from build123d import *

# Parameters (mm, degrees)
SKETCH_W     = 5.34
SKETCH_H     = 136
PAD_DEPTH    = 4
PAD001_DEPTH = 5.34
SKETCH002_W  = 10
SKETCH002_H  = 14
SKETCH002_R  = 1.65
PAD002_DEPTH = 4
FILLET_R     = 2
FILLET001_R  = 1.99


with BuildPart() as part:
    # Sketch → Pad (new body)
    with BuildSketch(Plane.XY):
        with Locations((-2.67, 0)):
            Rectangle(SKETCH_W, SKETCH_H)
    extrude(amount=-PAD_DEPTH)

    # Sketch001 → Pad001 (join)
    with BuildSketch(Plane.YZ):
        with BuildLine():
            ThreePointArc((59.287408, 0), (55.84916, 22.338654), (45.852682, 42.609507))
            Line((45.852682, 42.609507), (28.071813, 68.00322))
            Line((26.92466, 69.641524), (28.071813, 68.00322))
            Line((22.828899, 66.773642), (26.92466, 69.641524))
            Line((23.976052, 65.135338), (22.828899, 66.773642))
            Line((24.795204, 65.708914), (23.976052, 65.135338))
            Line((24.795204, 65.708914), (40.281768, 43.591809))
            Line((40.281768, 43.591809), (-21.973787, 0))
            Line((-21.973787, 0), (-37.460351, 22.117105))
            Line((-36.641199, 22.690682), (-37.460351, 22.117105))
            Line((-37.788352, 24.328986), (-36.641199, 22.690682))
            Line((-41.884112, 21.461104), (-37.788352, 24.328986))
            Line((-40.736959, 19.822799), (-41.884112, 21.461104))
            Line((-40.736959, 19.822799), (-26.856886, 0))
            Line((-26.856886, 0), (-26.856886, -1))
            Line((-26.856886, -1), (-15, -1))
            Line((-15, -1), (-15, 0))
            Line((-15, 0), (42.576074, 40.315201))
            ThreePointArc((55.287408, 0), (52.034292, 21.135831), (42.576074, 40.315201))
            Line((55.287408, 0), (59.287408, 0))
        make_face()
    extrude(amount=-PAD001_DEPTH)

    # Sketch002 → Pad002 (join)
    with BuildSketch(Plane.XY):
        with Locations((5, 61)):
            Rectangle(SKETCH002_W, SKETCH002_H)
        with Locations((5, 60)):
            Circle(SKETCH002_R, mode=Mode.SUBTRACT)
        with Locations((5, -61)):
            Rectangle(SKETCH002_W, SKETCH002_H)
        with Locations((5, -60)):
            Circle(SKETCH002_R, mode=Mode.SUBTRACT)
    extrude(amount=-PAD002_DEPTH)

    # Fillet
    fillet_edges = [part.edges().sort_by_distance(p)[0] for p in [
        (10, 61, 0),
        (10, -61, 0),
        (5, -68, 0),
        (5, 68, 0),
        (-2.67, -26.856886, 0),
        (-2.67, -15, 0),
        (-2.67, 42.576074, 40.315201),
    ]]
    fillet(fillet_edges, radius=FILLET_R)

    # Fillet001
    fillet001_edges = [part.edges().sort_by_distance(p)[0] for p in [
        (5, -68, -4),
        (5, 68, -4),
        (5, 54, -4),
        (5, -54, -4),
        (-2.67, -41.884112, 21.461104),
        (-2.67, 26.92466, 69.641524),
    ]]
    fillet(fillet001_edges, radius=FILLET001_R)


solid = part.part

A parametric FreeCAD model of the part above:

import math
import FreeCAD as App
import Part
import Sketcher
from FreeCAD import Vector
Q = App.Units.Quantity


def edges_at(feature, points):
    """Names of the edges that pass closest to the given points."""
    edges = feature.Shape.Edges
    near = lambda p: min(range(len(edges)), key=lambda i: edges[i].distToShape(Part.Vertex(*p))[0])
    return sorted({f"Edge{near(p) + 1}" for p in points})

doc = App.newDocument("Part")
body = doc.addObject("PartDesign::Body", "Body")

# Sketch on XY plane
sketch1 = doc.addObject("Sketcher::SketchObject", "Sketch")
body.addObject(sketch1)
sketch1.AttachmentSupport = (doc.XY_Plane, [""])
sketch1.MapMode = "FlatFace"
sketch1.addGeometry([
    Part.LineSegment(Vector(-5, 68, 0), Vector(-5, -68, 0)),
    Part.LineSegment(Vector(-5, -68, 0), Vector(0, -68, 0)),
    Part.LineSegment(Vector(0, -68, 0), Vector(0, 68, 0)),
    Part.LineSegment(Vector(0, 68, 0), Vector(-5, 68, 0)),
], False)
sketch1.addConstraint([
    Sketcher.Constraint("Coincident", 0, 2, 1, 1),
    Sketcher.Constraint("Coincident", 1, 2, 2, 1),
    Sketcher.Constraint("Coincident", 2, 2, 3, 1),
    Sketcher.Constraint("Coincident", 3, 2, 0, 1),
    Sketcher.Constraint("Vertical", 0),
    Sketcher.Constraint("Horizontal", 1),
    Sketcher.Constraint("Vertical", 2),
    Sketcher.Constraint("Horizontal", 3),
    Sketcher.Constraint("Symmetric", 1, 2, 2, 2, -1, 1),
    Sketcher.Constraint("DistanceY", 0, 2, 0, 1, 136.0),
    Sketcher.Constraint("DistanceX", 1, 1, 1, 2, 5.34),
])
pad1 = doc.addObject("PartDesign::Pad", "Pad")
body.addObject(pad1)
pad1.Profile = sketch1
pad1.Length = 4
pad1.Reversed = True

# Sketch on YZ plane
sketch2 = doc.addObject("Sketcher::SketchObject", "Sketch001")
body.addObject(sketch2)
sketch2.AttachmentSupport = (doc.YZ_Plane, [""])
sketch2.MapMode = "FlatFace"
sketch2.addGeometry([
    Part.ArcOfCircle(Part.Circle(Vector(-15, 0, 0), Vector(0, 0, 1), 74.3), math.radians(0), math.radians(35)),  # 0
    Part.LineSegment(Vector(45.9, 42.6, 0), Vector(28.1, 68, 0)),  # 1
    Part.LineSegment(Vector(28.1, 68, 0), Vector(26.9, 69.6, 0)),  # 2
    Part.LineSegment(Vector(26.9, 69.6, 0), Vector(22.8, 66.8, 0)),  # 3
    Part.LineSegment(Vector(22.8, 66.8, 0), Vector(24, 65.1, 0)),  # 4
    Part.LineSegment(Vector(24, 65.1, 0), Vector(24.8, 65.7, 0)),  # 5
    Part.LineSegment(Vector(24.8, 65.7, 0), Vector(40.3, 43.6, 0)),  # 6
    Part.LineSegment(Vector(40.3, 43.6, 0), Vector(-22, 0, 0)),  # 7
    Part.LineSegment(Vector(-22, 0, 0), Vector(-37.5, 22.1, 0)),  # 8
    Part.LineSegment(Vector(-37.5, 22.1, 0), Vector(-36.6, 22.7, 0)),  # 9
    Part.LineSegment(Vector(-36.6, 22.7, 0), Vector(-37.8, 24.3, 0)),  # 10
    Part.LineSegment(Vector(-37.8, 24.3, 0), Vector(-41.9, 21.5, 0)),  # 11
    Part.LineSegment(Vector(-41.9, 21.5, 0), Vector(-40.7, 19.8, 0)),  # 12
    Part.LineSegment(Vector(-40.7, 19.8, 0), Vector(-26.9, 0, 0)),  # 13
    Part.LineSegment(Vector(-26.9, 0, 0), Vector(-26.9, -1, 0)),  # 14
    Part.LineSegment(Vector(-26.9, -1, 0), Vector(-15, -1, 0)),  # 15
    Part.LineSegment(Vector(-15, -1, 0), Vector(-15, 0, 0)),  # 16
    Part.LineSegment(Vector(-15, 0, 0), Vector(42.6, 40.3, 0)),  # 17
    Part.ArcOfCircle(Part.Circle(Vector(-15, 0, 0), Vector(0, 0, 1), 70.3), math.radians(0), math.radians(35)),  # 18
    Part.LineSegment(Vector(55.3, 0, 0), Vector(59.3, 0, 0)),  # 19
], False)
sketch2.addConstraint([
    Sketcher.Constraint("Tangent", 0, 2, 1, 1),
    Sketcher.Constraint("Coincident", 1, 2, 2, 1),
    Sketcher.Constraint("Coincident", 2, 2, 3, 1),
    Sketcher.Constraint("Coincident", 3, 2, 4, 1),
    Sketcher.Constraint("Coincident", 4, 2, 5, 1),
    Sketcher.Constraint("Coincident", 5, 2, 6, 1),
    Sketcher.Constraint("Coincident", 6, 2, 7, 1),
    Sketcher.Constraint("Coincident", 7, 2, 8, 1),
    Sketcher.Constraint("Coincident", 8, 2, 9, 1),
    Sketcher.Constraint("Coincident", 9, 2, 10, 1),
    Sketcher.Constraint("Coincident", 10, 2, 11, 1),
    Sketcher.Constraint("Coincident", 11, 2, 12, 1),
    Sketcher.Constraint("Coincident", 12, 2, 13, 1),
    Sketcher.Constraint("Coincident", 13, 2, 14, 1),
    Sketcher.Constraint("Coincident", 14, 2, 15, 1),
    Sketcher.Constraint("Coincident", 15, 2, 16, 1),
    Sketcher.Constraint("Coincident", 16, 2, 17, 1),
    Sketcher.Constraint("Coincident", 17, 2, 18, 2),
    Sketcher.Constraint("Coincident", 18, 1, 19, 1),
    Sketcher.Constraint("Coincident", 19, 2, 0, 1),
    Sketcher.Constraint("Vertical", 14),
    Sketcher.Constraint("Horizontal", 15),
    Sketcher.Constraint("Vertical", 16),
    Sketcher.Constraint("Horizontal", 19),
    Sketcher.Constraint("Coincident", 18, 3, 0, 3),
    Sketcher.Constraint("Coincident", 16, 2, 0, 3),
    Sketcher.Constraint("PointOnObject", 7, 2, -1),
    Sketcher.Constraint("PointOnObject", 13, 2, -1),
    Sketcher.Constraint("PointOnObject", 16, 2, -1),
    Sketcher.Constraint("PointOnObject", 18, 1, -1),
    Sketcher.Constraint("Parallel", 1, 2),
    Sketcher.Constraint("Perpendicular", 2, 3),
    Sketcher.Constraint("Perpendicular", 3, 4),
    Sketcher.Constraint("Perpendicular", 4, 5),
    Sketcher.Constraint("Perpendicular", 5, 6),
    Sketcher.Constraint("Perpendicular", 6, 7),
    Sketcher.Constraint("Perpendicular", 7, 8),
    Sketcher.Constraint("Perpendicular", 8, 9),
    Sketcher.Constraint("Perpendicular", 9, 10),
    Sketcher.Constraint("Perpendicular", 10, 11),
    Sketcher.Constraint("Perpendicular", 11, 12),
    Sketcher.Constraint("Parallel", 12, 13),
    Sketcher.Constraint("Perpendicular", 13, 17),
    Sketcher.Constraint("Equal", 2, 4),
    Sketcher.Constraint("Equal", 6, 8),
    Sketcher.Constraint("Equal", 5, 9),
    Sketcher.Constraint("Equal", 4, 10),
    Sketcher.Constraint("Equal", 3, 11),
    Sketcher.Constraint("Equal", 10, 12),
    Sketcher.Constraint("DistanceX", 19, 1, 19, 2, 4.0),
    Sketcher.Constraint("DistanceY", 14, 2, 14, 1, 1.0),
    Sketcher.Constraint("Angle", 1, Q("125 deg")),
    Sketcher.Constraint("Distance", 1, 30.999999),
    Sketcher.Constraint("Distance", 2, 2.0),
    Sketcher.Constraint("Distance", 3, 5.000001),
    Sketcher.Constraint("Distance", 5, 1.0),
    Sketcher.Constraint("Distance", 6, 27.0),
    Sketcher.Constraint("Distance", 7, 76.0),
    Sketcher.Constraint("DistanceX", 15, 2, -1, 1, 15.0),
])
pad2 = doc.addObject("PartDesign::Pad", "Pad001")
body.addObject(pad2)
pad2.Profile = sketch2
pad2.Length = 5.34
pad2.Reversed = True

# Sketch on XY plane
sketch3 = doc.addObject("Sketcher::SketchObject", "Sketch002")
body.addObject(sketch3)
sketch3.AttachmentSupport = (doc.XY_Plane, [""])
sketch3.MapMode = "FlatFace"
sketch3.addGeometry([
    Part.LineSegment(Vector(0, 68, 0), Vector(0, 54, 0)),  # 0
    Part.LineSegment(Vector(0, 54, 0), Vector(10, 54, 0)),  # 1
    Part.LineSegment(Vector(10, 54, 0), Vector(10, 68, 0)),  # 2
    Part.LineSegment(Vector(10, 68, 0), Vector(0, 68, 0)),  # 3
    Part.Circle(Vector(5, 60, 0), Vector(0, 0, 1), 1.6),  # 4
    Part.LineSegment(Vector(0, -54, 0), Vector(0, -68, 0)),  # 5
    Part.LineSegment(Vector(0, -68, 0), Vector(10, -68, 0)),  # 6
    Part.LineSegment(Vector(10, -68, 0), Vector(10, -54, 0)),  # 7
    Part.LineSegment(Vector(10, -54, 0), Vector(0, -54, 0)),  # 8
    Part.Circle(Vector(5, -60, 0), Vector(0, 0, 1), 1.6),  # 9
], False)
sketch3.addConstraint([
    Sketcher.Constraint("Coincident", 0, 2, 1, 1),
    Sketcher.Constraint("Coincident", 1, 2, 2, 1),
    Sketcher.Constraint("Coincident", 2, 2, 3, 1),
    Sketcher.Constraint("Coincident", 3, 2, 0, 1),
    Sketcher.Constraint("Coincident", 5, 2, 6, 1),
    Sketcher.Constraint("Coincident", 6, 2, 7, 1),
    Sketcher.Constraint("Coincident", 7, 2, 8, 1),
    Sketcher.Constraint("Coincident", 8, 2, 5, 1),
    Sketcher.Constraint("Vertical", 0),
    Sketcher.Constraint("Horizontal", 1),
    Sketcher.Constraint("Vertical", 2),
    Sketcher.Constraint("Horizontal", 3),
    Sketcher.Constraint("Vertical", 5),
    Sketcher.Constraint("Horizontal", 6),
    Sketcher.Constraint("Vertical", 7),
    Sketcher.Constraint("Horizontal", 8),
    Sketcher.Constraint("Equal", 4, 9),
    Sketcher.Constraint("Symmetric", 3, 2, 5, 2, -1, 1),
    Sketcher.Constraint("Symmetric", 4, 3, 9, 3, -1),
    Sketcher.Constraint("Symmetric", 1, 2, 7, 2, -1),
    Sketcher.Constraint("PointOnObject", 0, 2, -2),
    Sketcher.Constraint("Diameter", 4, 3.3),
    Sketcher.Constraint("DistanceX", 1, 1, 1, 2, 10.0),
    Sketcher.Constraint("DistanceY", 0, 2, 0, 1, 14.0),
    Sketcher.Constraint("DistanceX", -1, 1, 4, 3, 5.0),
    Sketcher.Constraint("DistanceY", -1, 1, 4, 3, 60.0),
    Sketcher.Constraint("DistanceY", -1, 1, 0, 2, 54.0),
])
pad3 = doc.addObject("PartDesign::Pad", "Pad002")
body.addObject(pad3)
pad3.Profile = sketch3
pad3.Length = 4
pad3.Reversed = True
doc.recompute()

fillet = doc.addObject("PartDesign::Fillet", "Fillet")
body.addObject(fillet)
fillet.Base = (pad3, edges_at(pad3, [
    (10, 61, 0),
    (10, -61, 0),
    (2.33, -68, 0),
    (2.33, 68, 0),
    (-2.67, -26.857, 0),
    (-2.67, -15, 0),
    (-2.67, 42.576, 40.315),
]))
fillet.Radius = 2
doc.recompute()

fillet2 = doc.addObject("PartDesign::Fillet", "Fillet001")
body.addObject(fillet2)
fillet2.Base = (fillet, edges_at(fillet, [
    (2.33, -68, -4),
    (2.33, 68, -4),
    (5, 54, -4),
    (5, -54, -4),
    (-2.67, -41.884, 21.461),
    (-2.67, 26.925, 69.642),
]))
fillet2.Radius = 1.99

doc.recompute()
